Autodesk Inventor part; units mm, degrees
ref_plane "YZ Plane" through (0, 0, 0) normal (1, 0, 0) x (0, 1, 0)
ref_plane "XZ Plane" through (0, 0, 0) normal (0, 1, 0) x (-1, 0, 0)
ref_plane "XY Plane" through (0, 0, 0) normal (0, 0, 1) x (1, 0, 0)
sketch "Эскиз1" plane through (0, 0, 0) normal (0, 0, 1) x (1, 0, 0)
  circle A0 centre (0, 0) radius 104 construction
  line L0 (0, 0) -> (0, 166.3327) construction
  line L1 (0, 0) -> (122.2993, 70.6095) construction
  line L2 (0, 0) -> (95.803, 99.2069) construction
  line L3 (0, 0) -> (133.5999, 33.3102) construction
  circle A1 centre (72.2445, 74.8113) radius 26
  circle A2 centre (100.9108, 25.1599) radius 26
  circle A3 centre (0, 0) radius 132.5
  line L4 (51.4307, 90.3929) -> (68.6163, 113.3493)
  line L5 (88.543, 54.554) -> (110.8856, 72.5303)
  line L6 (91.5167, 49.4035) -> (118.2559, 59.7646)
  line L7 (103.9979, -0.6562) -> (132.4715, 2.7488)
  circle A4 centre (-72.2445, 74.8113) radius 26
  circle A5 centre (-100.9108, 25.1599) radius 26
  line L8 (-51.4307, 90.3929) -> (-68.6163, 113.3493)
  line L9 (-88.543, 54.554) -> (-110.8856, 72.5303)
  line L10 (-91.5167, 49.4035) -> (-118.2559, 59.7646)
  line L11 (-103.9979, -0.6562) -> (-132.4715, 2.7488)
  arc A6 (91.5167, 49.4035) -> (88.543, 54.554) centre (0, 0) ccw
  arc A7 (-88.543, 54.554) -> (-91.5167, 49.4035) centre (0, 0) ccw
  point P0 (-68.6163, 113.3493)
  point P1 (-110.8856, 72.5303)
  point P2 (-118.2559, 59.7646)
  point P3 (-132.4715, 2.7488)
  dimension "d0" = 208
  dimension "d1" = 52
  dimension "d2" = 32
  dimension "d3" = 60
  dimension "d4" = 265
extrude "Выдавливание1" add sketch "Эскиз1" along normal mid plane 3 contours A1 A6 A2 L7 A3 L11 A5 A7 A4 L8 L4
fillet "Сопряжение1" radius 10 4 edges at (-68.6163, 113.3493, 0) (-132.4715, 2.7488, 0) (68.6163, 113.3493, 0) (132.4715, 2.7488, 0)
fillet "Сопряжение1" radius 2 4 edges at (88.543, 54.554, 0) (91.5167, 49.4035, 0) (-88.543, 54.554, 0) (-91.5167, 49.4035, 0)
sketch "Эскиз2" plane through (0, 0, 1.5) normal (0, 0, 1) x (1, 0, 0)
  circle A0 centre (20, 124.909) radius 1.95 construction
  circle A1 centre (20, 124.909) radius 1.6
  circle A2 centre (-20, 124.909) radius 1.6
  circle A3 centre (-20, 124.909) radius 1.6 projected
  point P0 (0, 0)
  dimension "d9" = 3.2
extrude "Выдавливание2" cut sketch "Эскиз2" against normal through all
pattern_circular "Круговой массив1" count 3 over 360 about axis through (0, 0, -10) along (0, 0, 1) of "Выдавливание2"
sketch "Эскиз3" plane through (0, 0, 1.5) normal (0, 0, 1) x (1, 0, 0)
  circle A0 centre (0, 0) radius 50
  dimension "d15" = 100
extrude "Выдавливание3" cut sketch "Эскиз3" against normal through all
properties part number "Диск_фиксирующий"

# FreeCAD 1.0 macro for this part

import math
import FreeCAD as App
import Part
import Sketcher

V = App.Vector
Q = App.Units.Quantity


def edges_at(feature, points):
    """Names of the edges that pass closest to the given points."""
    edges = feature.Shape.Edges
    near = lambda p: min(range(len(edges)), key=lambda i: edges[i].distToShape(Part.Vertex(*p))[0])
    return sorted({f"Edge{near(p) + 1}" for p in points})

doc = App.newDocument("Part")
params = doc.addObject("Spreadsheet::Sheet", "Params")
for row, (alias, value) in enumerate([
    ("sketch1_radius", "26 mm"),
    ("sketch1_radius2", "26 mm"),
    ("sketch1_radius3", "26 mm"),
    ("sketch1_radius4", "26 mm"),
    ("sketch1_radius5", "132.5 mm"),
    ("pad1_length", "3 mm"),
    ("fillet_radius", "10 mm"),
    ("fillet2_radius", "2 mm"),
    ("sketch2_diameter", "3.2 mm"),
    ("sketch3_diameter", "100 mm"),
], start=1):
    params.set(f"A{row}", alias)
    params.set(f"B{row}", "=" + value)
    params.setAlias(f"B{row}", alias)

body = doc.addObject("PartDesign::Body", "Body")

sketch1 = body.newObject("Sketcher::SketchObject", "Sketch")
sketch1.AttachmentSupport = (doc.getObject("XY_Plane"), [""])
sketch1.MapMode = "FlatFace"
sketch1.addGeometry(Part.ArcOfCircle(Part.Circle(V(72.2445, 74.8113, 0), V(0, 0, 1), 26), math.radians(143.180787), math.radians(308.819257)), False)
sketch1.addGeometry(Part.LineSegment(V(51.4307, 90.3929, 0), V(68.6163, 113.3493, 0)), False)
sketch1.addGeometry(Part.ArcOfCircle(Part.Circle(V(0, 0, 0), V(0, 0, 1), 132.5), math.radians(58.811272), math.radians(121.188728)), False)
sketch1.addGeometry(Part.LineSegment(V(-68.6163, 113.3493, 0), V(-51.4307, 90.3929, 0)), False)
sketch1.addGeometry(Part.ArcOfCircle(Part.Circle(V(-72.2445, 74.8113, 0), V(0, 0, 1), 26), math.radians(-128.819257), math.radians(36.819213)), False)
sketch1.addGeometry(Part.ArcOfCircle(Part.Circle(V(0.05268, -0.031427, 0), V(0, 0, 1), 104.061344), math.radians(148.362014), math.radians(151.637028)), False)
sketch1.addGeometry(Part.ArcOfCircle(Part.Circle(V(-100.9108, 25.1599, 0), V(0, 0, 1), 26), math.radians(-96.819073), math.radians(68.819257)), False)
sketch1.addGeometry(Part.LineSegment(V(-103.9979, -0.6562, 0), V(-132.4715, 2.7488, 0)), False)
sketch1.addGeometry(Part.ArcOfCircle(Part.Circle(V(0, 0, 0), V(0, 0, 1), 132.5), math.radians(178.811276), math.radians(361.188724)), False)
sketch1.addGeometry(Part.LineSegment(V(132.4715, 2.7488, 0), V(103.9979, -0.6562, 0)), False)
sketch1.addGeometry(Part.ArcOfCircle(Part.Circle(V(100.9108, 25.1599, 0), V(0, 0, 1), 26), math.radians(111.180743), math.radians(276.819073)), False)
sketch1.addGeometry(Part.ArcOfCircle(Part.Circle(V(0.053494, 0.029873, 0), V(0, 0, 1), 103.938795), math.radians(28.361041), math.radians(31.639918)), False)
sketch1.addConstraint(Sketcher.Constraint("Coincident", 0, 1, 1, 1))
sketch1.addConstraint(Sketcher.Constraint("Coincident", 1, 2, 2, 1))
sketch1.addConstraint(Sketcher.Constraint("Coincident", 2, 2, 3, 1))
sketch1.addConstraint(Sketcher.Constraint("Coincident", 3, 2, 4, 2))
sketch1.addConstraint(Sketcher.Constraint("Coincident", 4, 1, 5, 1))
sketch1.addConstraint(Sketcher.Constraint("Coincident", 5, 2, 6, 2))
sketch1.addConstraint(Sketcher.Constraint("Coincident", 6, 1, 7, 1))
sketch1.addConstraint(Sketcher.Constraint("Coincident", 7, 2, 8, 1))
sketch1.addConstraint(Sketcher.Constraint("Coincident", 8, 2, 9, 1))
sketch1.addConstraint(Sketcher.Constraint("Coincident", 9, 2, 10, 2))
sketch1.addConstraint(Sketcher.Constraint("Coincident", 10, 1, 11, 1))
sketch1.addConstraint(Sketcher.Constraint("Coincident", 11, 2, 0, 2))
sketch1.addConstraint(Sketcher.Constraint("Coincident", 2, 3, -1, 1))
sketch1.addConstraint(Sketcher.Constraint("Coincident", 8, 3, -1, 1))
sketch1.addConstraint(Sketcher.Constraint("Radius", 0, Q("26 mm")))
sketch1.addConstraint(Sketcher.Constraint("Radius", 4, Q("26 mm")))
sketch1.addConstraint(Sketcher.Constraint("Radius", 6, Q("26 mm")))
sketch1.addConstraint(Sketcher.Constraint("Radius", 10, Q("26 mm")))
sketch1.addConstraint(Sketcher.Constraint("Radius", 2, Q("132.5 mm")))
sketch1.addConstraint(Sketcher.Constraint("Radius", 8, Q("132.5 mm")))
sketch1.addConstraint(Sketcher.Constraint("Radius", 5, Q("104.0613 mm")))
sketch1.addConstraint(Sketcher.Constraint("Radius", 11, Q("103.9388 mm")))
sketch1.addConstraint(Sketcher.Constraint("DistanceY", -1, 1, 6, 3, Q("25.16 mm")))
sketch1.addConstraint(Sketcher.Constraint("DistanceY", -1, 1, 10, 3, Q("25.16 mm")))
sketch1.addConstraint(Sketcher.Constraint("DistanceY", 11, 3, 10, 3, Q("25.13 mm")))
sketch1.addConstraint(Sketcher.Constraint("DistanceX", 0, 1, 10, 3, Q("49.48 mm")))
sketch1.addConstraint(Sketcher.Constraint("DistanceX", 6, 3, 3, 2, Q("49.48 mm")))
sketch1.addConstraint(Sketcher.Constraint("DistanceY", -1, 1, 0, 1, Q("90.393 mm")))
sketch1.addConstraint(Sketcher.Constraint("DistanceY", -1, 1, 3, 2, Q("90.393 mm")))
sketch1.addConstraint(Sketcher.Constraint("DistanceX", 4, 1, -1, 1, Q("88.543 mm")))
sketch1.addConstraint(Sketcher.Constraint("DistanceY", -1, 1, 4, 1, Q("54.554 mm")))
sketch1.addConstraint(Sketcher.Constraint("DistanceX", 6, 1, -1, 1, Q("103.998 mm")))
sketch1.addConstraint(Sketcher.Constraint("DistanceX", -1, 1, 9, 2, Q("103.998 mm")))
sketch1.addConstraint(Sketcher.Constraint("DistanceX", -1, 1, 11, 2, Q("88.543 mm")))
sketch1.addConstraint(Sketcher.Constraint("DistanceY", -1, 1, 11, 2, Q("54.554 mm")))
sketch1.addConstraint(Sketcher.Constraint("DistanceX", 4, 3, 0, 3, Q("144.489 mm")))
sketch1.addConstraint(Sketcher.Constraint("DistanceX", 11, 3, 0, 3, Q("72.191 mm")))
sketch1.addConstraint(Sketcher.Constraint("DistanceY", 0, 3, 1, 2, Q("38.538 mm")))
sketch1.addConstraint(Sketcher.Constraint("DistanceY", 4, 3, 2, 2, Q("38.538 mm")))
sketch1.addConstraint(Sketcher.Constraint("DistanceY", 6, 1, 7, 2, Q("3.405 mm")))
sketch1.addConstraint(Sketcher.Constraint("DistanceY", 8, 2, 10, 3, Q("22.411 mm")))
sketch1.addConstraint(Sketcher.Constraint("DistanceX", -1, 1, 5, 3, Q("0.0527 mm")))
sketch1.setExpression("Constraints[14]", "Params.sketch1_radius")
sketch1.setExpression("Constraints[15]", "Params.sketch1_radius2")
sketch1.setExpression("Constraints[16]", "Params.sketch1_radius3")
sketch1.setExpression("Constraints[17]", "Params.sketch1_radius4")
sketch1.setExpression("Constraints[18]", "Params.sketch1_radius5")
pad1 = body.newObject("PartDesign::Pad", "Pad")
pad1.Profile = sketch1
pad1.setExpression("Length", "Params.pad1_length")
pad1.Midplane = True
doc.recompute()

fillet = body.newObject("PartDesign::Fillet", "Fillet")
fillet.Base = (pad1, edges_at(pad1, [
    (-68.616, 113.349, 0),
    (-132.471, 2.749, 0),
    (68.616, 113.349, 0),
    (132.471, 2.749, 0),
]))
fillet.setExpression("Radius", "Params.fillet_radius")
doc.recompute()

fillet2 = body.newObject("PartDesign::Fillet", "Fillet001")
fillet2.Base = (fillet, edges_at(fillet, [
    (88.543, 54.554, 0),
    (91.517, 49.404, 0),
    (-88.543, 54.554, 0),
    (-91.517, 49.404, 0),
]))
fillet2.setExpression("Radius", "Params.fillet2_radius")

sketch2 = body.newObject("Sketcher::SketchObject", "Sketch001")
sketch2.AttachmentSupport = (doc.getObject("XY_Plane"), [""])
sketch2.MapMode = "FlatFace"
sketch2.AttachmentOffset = App.Placement(V(0, 0, 1.5), App.Rotation())
sketch2.addGeometry(Part.Circle(V(20, 124.909, 0), V(0, 0, 1), 1.6), False)
sketch2.addGeometry(Part.Circle(V(-20, 124.909, 0), V(0, 0, 1), 1.6), False)
sketch2.addConstraint(Sketcher.Constraint("Equal", 0, 1))
sketch2.addConstraint(Sketcher.Constraint("Symmetric", 0, 3, 1, 3, -2))
sketch2.addConstraint(Sketcher.Constraint("Diameter", 0, Q("3.2 mm")))
sketch2.addConstraint(Sketcher.Constraint("DistanceX", -1, 1, 0, 3, Q("20 mm")))
sketch2.addConstraint(Sketcher.Constraint("DistanceY", -1, 1, 0, 3, Q("124.909 mm")))
sketch2.setExpression("Constraints[2]", "Params.sketch2_diameter")
pocket1 = body.newObject("PartDesign::Pocket", "Pocket")
pocket1.Profile = sketch2
pocket1.Type = "ThroughAll"
doc.recompute()

polarpattern = body.newObject("PartDesign::PolarPattern", "PolarPattern")
polarpattern.Originals = [pocket1]
polarpattern.Axis = (doc.getObject("Z_Axis"), [""])
polarpattern.Angle = 360
polarpattern.Occurrences = 3
body.Tip = polarpattern

sketch3 = body.newObject("Sketcher::SketchObject", "Sketch002")
sketch3.AttachmentSupport = (doc.getObject("XY_Plane"), [""])
sketch3.MapMode = "FlatFace"
sketch3.AttachmentOffset = App.Placement(V(0, 0, 1.5), App.Rotation())
sketch3.addGeometry(Part.Circle(V(0, 0, 0), V(0, 0, 1), 50), False)
sketch3.addConstraint(Sketcher.Constraint("Coincident", 0, 3, -1, 1))
sketch3.addConstraint(Sketcher.Constraint("Diameter", 0, Q("100 mm")))
sketch3.setExpression("Constraints[1]", "Params.sketch3_diameter")
pocket2 = body.newObject("PartDesign::Pocket", "Pocket001")
pocket2.Profile = sketch3
pocket2.Type = "ThroughAll"

doc.recompute()
